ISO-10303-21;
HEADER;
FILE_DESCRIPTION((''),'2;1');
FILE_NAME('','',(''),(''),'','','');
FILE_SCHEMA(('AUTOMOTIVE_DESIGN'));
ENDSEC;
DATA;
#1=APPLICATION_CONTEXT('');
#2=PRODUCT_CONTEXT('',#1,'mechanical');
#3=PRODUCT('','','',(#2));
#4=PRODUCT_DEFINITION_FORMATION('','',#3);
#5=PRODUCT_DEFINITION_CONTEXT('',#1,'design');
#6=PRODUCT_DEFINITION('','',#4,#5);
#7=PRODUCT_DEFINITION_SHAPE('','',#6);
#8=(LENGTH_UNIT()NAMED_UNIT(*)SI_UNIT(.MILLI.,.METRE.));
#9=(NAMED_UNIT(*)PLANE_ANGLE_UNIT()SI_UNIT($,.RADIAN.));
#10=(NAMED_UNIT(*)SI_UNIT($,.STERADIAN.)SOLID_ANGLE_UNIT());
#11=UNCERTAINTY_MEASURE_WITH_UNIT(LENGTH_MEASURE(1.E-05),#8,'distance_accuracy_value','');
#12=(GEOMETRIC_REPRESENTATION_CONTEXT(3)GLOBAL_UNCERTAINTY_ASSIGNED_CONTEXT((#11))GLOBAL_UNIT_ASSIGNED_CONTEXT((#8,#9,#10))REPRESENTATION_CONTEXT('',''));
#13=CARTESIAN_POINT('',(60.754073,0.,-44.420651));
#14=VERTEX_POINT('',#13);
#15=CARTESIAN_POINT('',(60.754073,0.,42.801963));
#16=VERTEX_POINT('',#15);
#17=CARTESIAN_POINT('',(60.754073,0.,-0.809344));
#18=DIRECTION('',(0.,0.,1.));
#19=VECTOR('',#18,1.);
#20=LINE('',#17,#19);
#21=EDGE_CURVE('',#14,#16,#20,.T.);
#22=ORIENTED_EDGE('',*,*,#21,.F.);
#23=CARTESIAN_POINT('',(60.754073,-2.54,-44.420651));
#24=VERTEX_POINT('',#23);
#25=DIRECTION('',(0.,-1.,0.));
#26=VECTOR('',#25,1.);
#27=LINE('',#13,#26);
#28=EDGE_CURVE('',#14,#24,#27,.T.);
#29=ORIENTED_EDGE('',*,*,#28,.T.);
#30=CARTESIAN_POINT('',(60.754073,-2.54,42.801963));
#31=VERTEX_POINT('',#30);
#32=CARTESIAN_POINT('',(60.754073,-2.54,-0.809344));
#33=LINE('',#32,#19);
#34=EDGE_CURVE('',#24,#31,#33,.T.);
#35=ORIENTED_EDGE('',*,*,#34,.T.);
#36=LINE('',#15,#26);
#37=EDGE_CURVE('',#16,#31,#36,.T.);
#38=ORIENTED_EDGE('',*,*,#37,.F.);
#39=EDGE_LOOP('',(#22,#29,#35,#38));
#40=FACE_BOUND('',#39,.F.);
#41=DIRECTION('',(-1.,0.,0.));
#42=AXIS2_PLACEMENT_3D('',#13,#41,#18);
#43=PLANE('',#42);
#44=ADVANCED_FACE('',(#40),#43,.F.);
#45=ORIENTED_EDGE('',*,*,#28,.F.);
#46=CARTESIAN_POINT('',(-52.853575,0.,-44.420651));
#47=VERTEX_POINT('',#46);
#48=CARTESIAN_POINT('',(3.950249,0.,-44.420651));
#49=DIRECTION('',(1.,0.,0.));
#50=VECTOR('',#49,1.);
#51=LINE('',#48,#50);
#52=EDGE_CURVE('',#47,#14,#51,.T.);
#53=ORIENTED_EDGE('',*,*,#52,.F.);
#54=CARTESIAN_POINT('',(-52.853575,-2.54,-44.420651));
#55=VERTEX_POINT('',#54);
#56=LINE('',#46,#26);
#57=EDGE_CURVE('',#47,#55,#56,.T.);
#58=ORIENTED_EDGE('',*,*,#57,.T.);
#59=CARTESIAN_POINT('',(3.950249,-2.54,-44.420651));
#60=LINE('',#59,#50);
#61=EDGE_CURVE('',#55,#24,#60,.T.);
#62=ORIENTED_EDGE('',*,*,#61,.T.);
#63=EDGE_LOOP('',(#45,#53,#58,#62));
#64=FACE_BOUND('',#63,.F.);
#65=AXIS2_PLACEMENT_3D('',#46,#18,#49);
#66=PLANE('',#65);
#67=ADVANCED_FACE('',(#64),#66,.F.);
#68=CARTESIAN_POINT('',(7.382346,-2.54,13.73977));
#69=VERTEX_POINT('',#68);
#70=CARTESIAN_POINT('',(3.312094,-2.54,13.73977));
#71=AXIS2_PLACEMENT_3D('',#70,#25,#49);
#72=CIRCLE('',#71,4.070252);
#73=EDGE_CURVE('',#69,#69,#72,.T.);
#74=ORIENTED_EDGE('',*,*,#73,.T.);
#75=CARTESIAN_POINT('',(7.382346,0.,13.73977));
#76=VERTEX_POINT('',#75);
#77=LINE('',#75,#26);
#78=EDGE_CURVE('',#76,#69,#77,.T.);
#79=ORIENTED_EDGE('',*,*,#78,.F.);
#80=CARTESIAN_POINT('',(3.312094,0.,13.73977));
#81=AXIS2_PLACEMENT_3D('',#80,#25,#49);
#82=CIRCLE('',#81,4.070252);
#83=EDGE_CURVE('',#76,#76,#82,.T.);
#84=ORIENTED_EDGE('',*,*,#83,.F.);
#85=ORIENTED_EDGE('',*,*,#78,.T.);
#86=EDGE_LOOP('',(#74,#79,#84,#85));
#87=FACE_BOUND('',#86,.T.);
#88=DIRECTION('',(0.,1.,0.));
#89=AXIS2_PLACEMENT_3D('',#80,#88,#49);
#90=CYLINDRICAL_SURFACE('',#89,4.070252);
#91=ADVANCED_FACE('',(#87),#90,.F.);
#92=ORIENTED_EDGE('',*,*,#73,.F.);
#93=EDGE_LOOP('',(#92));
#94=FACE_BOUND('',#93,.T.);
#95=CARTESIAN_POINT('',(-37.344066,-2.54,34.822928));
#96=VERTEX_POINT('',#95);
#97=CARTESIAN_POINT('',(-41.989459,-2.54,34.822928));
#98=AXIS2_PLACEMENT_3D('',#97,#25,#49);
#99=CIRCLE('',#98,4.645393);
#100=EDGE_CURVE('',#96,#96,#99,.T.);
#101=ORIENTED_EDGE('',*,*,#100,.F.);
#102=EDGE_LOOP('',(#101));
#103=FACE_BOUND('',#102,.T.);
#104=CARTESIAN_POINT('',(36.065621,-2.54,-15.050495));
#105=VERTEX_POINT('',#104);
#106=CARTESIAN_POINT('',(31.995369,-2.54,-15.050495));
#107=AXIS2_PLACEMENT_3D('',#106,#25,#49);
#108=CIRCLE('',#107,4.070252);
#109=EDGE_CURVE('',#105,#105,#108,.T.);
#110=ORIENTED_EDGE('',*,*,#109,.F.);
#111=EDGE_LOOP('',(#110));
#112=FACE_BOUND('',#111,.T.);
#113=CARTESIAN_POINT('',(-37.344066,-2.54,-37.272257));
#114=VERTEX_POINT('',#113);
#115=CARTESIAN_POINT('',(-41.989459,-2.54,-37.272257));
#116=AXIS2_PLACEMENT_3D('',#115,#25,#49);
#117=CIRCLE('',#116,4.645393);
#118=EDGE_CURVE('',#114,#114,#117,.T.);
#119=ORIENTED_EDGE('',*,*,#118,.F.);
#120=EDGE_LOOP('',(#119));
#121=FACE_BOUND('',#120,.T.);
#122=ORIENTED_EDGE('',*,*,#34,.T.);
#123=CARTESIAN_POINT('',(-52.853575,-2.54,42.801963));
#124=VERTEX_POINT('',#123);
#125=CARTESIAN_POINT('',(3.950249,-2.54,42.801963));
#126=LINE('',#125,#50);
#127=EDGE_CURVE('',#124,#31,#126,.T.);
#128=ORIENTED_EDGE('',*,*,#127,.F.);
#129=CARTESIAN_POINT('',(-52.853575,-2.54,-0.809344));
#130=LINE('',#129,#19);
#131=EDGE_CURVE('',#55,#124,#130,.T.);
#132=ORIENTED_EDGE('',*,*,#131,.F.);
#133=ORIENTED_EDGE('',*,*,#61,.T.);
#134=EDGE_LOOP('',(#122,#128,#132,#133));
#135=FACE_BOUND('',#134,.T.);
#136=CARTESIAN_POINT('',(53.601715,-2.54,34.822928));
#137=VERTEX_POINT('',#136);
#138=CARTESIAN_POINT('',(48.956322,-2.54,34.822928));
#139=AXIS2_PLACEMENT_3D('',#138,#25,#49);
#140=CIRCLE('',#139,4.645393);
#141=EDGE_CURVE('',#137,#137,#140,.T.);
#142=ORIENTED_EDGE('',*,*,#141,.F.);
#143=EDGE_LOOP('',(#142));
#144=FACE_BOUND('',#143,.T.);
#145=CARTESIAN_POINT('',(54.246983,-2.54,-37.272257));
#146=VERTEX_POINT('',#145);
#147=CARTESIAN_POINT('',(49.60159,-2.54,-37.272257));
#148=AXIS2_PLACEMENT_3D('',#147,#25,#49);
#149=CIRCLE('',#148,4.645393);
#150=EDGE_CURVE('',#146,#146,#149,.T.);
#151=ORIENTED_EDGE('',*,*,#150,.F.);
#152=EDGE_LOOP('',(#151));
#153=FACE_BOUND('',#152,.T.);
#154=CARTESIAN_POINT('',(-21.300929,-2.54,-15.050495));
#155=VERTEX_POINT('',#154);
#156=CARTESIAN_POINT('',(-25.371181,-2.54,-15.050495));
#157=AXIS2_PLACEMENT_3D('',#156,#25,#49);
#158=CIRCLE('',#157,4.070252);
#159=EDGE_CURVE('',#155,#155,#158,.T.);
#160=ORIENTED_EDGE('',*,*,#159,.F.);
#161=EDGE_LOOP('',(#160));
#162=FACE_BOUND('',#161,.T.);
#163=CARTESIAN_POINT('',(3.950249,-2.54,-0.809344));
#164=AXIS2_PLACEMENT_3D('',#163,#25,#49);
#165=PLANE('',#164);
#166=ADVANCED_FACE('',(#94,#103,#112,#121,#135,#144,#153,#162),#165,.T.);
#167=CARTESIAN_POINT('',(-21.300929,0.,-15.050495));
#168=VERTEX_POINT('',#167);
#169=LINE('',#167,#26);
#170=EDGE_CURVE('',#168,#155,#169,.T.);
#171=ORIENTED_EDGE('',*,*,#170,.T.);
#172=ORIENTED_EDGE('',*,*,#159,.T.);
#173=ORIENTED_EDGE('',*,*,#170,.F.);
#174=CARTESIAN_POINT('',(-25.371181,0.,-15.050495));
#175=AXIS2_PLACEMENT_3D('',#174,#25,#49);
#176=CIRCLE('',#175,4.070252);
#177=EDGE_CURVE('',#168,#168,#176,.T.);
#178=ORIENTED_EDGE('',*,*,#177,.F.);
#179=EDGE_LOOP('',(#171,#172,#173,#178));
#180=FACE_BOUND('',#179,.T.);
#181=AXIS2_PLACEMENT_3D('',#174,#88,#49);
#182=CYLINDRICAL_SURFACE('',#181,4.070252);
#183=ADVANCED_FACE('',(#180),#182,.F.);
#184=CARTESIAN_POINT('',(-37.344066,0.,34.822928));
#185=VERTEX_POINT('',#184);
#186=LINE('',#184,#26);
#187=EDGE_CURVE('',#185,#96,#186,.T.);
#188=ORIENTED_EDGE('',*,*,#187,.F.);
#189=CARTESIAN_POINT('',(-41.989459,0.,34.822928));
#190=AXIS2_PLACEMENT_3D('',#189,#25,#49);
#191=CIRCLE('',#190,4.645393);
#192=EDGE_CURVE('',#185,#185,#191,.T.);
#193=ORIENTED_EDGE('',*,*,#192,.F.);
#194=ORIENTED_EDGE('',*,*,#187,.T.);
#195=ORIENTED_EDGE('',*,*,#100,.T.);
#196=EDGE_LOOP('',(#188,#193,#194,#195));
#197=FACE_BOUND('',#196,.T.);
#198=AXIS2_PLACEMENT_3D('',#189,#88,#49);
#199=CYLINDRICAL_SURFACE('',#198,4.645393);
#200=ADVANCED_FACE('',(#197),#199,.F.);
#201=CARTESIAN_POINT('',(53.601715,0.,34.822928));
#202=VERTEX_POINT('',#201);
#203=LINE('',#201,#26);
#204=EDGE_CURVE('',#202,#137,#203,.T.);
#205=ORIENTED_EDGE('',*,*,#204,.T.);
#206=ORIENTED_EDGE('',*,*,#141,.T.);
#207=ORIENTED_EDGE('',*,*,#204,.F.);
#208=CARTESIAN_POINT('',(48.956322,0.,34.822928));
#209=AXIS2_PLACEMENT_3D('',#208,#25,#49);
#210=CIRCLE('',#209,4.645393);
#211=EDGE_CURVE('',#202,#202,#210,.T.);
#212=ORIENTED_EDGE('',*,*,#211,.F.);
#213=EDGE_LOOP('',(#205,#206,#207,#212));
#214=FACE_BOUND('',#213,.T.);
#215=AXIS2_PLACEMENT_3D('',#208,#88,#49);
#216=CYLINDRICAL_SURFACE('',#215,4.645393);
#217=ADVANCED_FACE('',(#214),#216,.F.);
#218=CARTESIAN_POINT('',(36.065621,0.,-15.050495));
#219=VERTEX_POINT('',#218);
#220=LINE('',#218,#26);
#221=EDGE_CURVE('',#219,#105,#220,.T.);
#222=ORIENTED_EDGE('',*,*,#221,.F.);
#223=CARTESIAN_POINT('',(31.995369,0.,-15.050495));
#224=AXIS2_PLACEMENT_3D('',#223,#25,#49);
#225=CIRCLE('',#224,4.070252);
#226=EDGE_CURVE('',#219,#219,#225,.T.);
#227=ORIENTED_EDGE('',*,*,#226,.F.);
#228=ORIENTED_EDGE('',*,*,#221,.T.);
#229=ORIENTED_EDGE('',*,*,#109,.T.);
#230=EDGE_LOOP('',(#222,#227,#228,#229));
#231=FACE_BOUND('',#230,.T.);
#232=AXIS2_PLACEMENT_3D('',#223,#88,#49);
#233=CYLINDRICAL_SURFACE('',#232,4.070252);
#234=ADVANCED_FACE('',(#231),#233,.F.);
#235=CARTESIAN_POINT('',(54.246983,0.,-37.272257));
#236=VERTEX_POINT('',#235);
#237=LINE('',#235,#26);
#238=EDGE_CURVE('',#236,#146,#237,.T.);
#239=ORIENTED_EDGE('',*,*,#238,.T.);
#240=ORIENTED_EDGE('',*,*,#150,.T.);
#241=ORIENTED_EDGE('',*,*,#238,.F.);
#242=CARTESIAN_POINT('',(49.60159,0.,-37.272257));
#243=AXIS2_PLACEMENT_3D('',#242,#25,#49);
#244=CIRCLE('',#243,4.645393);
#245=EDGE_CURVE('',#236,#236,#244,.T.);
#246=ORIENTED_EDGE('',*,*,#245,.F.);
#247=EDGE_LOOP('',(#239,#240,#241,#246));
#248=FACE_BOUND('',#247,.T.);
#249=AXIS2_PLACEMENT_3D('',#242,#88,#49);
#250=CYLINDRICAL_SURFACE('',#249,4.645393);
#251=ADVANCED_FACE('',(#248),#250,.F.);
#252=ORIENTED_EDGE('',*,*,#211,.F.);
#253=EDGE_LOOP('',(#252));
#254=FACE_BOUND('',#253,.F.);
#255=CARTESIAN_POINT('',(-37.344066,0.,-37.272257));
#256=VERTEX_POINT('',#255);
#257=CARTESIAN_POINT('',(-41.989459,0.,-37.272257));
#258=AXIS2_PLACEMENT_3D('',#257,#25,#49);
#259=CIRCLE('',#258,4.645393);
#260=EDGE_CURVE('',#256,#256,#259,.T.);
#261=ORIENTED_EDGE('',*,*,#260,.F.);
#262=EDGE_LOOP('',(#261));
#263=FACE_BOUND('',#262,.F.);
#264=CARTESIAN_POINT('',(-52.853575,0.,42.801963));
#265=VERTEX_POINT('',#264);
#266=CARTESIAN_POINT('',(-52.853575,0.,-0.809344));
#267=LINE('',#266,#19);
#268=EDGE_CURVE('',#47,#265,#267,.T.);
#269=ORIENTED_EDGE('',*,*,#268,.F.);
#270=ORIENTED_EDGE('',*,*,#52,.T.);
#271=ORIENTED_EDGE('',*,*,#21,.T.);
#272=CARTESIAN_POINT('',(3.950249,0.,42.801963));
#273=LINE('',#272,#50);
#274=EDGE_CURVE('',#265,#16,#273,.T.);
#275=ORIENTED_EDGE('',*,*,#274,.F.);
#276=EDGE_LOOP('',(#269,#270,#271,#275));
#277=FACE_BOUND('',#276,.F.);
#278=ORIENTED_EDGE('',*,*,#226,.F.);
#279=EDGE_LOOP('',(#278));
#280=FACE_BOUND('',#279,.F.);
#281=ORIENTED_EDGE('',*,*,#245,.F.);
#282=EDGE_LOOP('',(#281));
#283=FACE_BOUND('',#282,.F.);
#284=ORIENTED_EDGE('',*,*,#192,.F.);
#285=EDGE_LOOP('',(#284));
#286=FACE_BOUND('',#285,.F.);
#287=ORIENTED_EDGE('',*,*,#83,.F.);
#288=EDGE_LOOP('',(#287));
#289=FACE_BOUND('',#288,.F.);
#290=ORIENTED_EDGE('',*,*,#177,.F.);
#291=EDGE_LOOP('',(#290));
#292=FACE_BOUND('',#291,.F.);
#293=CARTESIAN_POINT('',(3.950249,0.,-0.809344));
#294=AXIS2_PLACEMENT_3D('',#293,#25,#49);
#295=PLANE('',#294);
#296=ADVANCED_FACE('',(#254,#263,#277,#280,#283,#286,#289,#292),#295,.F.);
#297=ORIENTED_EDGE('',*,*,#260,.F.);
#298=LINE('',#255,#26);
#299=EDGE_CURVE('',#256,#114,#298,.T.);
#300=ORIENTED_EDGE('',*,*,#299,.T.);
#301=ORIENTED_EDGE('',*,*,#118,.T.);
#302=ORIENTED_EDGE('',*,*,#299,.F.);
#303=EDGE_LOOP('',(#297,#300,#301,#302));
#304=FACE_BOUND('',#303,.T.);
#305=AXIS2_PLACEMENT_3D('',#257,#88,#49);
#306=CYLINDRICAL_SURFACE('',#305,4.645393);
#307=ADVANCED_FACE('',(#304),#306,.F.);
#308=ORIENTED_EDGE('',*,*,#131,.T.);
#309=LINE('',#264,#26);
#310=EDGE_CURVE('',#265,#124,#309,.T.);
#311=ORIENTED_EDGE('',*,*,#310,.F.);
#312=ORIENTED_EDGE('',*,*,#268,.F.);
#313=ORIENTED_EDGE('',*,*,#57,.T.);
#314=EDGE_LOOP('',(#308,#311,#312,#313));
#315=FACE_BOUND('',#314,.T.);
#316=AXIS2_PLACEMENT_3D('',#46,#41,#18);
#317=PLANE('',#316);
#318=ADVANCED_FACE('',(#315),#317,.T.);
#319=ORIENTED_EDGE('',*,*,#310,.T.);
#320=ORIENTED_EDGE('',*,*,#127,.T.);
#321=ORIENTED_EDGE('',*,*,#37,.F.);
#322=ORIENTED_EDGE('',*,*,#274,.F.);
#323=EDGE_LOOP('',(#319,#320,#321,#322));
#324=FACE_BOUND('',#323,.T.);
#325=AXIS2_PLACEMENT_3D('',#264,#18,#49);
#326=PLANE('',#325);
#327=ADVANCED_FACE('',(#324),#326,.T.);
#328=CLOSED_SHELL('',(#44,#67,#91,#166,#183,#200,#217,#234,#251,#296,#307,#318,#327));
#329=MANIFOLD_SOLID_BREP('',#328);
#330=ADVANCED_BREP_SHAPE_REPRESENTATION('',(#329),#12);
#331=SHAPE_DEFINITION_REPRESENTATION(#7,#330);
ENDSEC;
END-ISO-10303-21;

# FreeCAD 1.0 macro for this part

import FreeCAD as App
import Part
import Sketcher
from FreeCAD import Vector
Q = App.Units.Quantity

doc = App.newDocument("Part")
body = doc.addObject("PartDesign::Body", "Body")

# Sketch on XZ plane
sketch1 = doc.addObject("Sketcher::SketchObject", "Sketch")
body.addObject(sketch1)
sketch1.AttachmentSupport = (doc.XZ_Plane, [""])
sketch1.MapMode = "FlatFace"
sketch1.addGeometry([
    Part.LineSegment(Vector(-52.9, 42.8, 0), Vector(-52.9, -44.4, 0)),  # 0
    Part.LineSegment(Vector(-52.9, -44.4, 0), Vector(60.8, -44.4, 0)),  # 1
    Part.LineSegment(Vector(60.8, -44.4, 0), Vector(60.8, 42.8, 0)),  # 2
    Part.LineSegment(Vector(60.8, 42.8, 0), Vector(-52.9, 42.8, 0)),  # 3
    Part.Circle(Vector(-42, -37.3, 0), Vector(0, 0, 1), 4.6),  # 4
    Part.Circle(Vector(-25.4, -15.1, 0), Vector(0, 0, 1), 4.1),  # 5
    Part.Circle(Vector(49.6, -37.3, 0), Vector(0, 0, 1), 4.6),  # 6
    Part.Circle(Vector(32, -15.1, 0), Vector(0, 0, 1), 4.1),  # 7
    Part.Circle(Vector(3.3, 13.7, 0), Vector(0, 0, 1), 4.1),  # 8
    Part.Circle(Vector(-42, 34.8, 0), Vector(0, 0, 1), 4.6),  # 9
    Part.Circle(Vector(49, 34.8, 0), Vector(0, 0, 1), 4.6),  # 10
], False)
sketch1.addConstraint([
    Sketcher.Constraint("Coincident", 0, 2, 1, 1),
    Sketcher.Constraint("Coincident", 1, 2, 2, 1),
    Sketcher.Constraint("Coincident", 2, 2, 3, 1),
    Sketcher.Constraint("Coincident", 3, 2, 0, 1),
    Sketcher.Constraint("Vertical", 0),
    Sketcher.Constraint("Horizontal", 1),
    Sketcher.Constraint("Vertical", 2),
    Sketcher.Constraint("Horizontal", 3),
    Sketcher.Constraint("Equal", 4, 6),
    Sketcher.Constraint("Equal", 5, 7),
    Sketcher.Constraint("Equal", 7, 8),
    Sketcher.Constraint("Equal", 6, 9),
    Sketcher.Constraint("Equal", 9, 10),
    Sketcher.Constraint("Horizontal", 4, 3, 6, 3),
    Sketcher.Constraint("Horizontal", 5, 3, 7, 3),
    Sketcher.Constraint("Horizontal", 9, 3, 10, 3),
    Sketcher.Constraint("Vertical", 4, 3, 9, 3),
    Sketcher.Constraint("Diameter", 4, 9.290786),
    Sketcher.Constraint("Diameter", 5, 8.140504),
    Sketcher.Constraint("DistanceX", 1, 1, 1, 2, 113.607649),
    Sketcher.Constraint("DistanceY", 0, 2, 0, 1, 87.222615),
    Sketcher.Constraint("DistanceX", 4, 3, -1, 1, 41.989459),
    Sketcher.Constraint("DistanceX", 5, 3, -1, 1, 25.371181),
    Sketcher.Constraint("DistanceX", -1, 1, 6, 3, 49.60159),
    Sketcher.Constraint("DistanceX", -1, 1, 7, 3, 31.995369),
    Sketcher.Constraint("DistanceY", -1, 1, 8, 3, 13.73977),
    Sketcher.Constraint("DistanceY", 0, 2, -1, 1, 44.420651),
    Sketcher.Constraint("DistanceX", 10, 3, 6, 3, 0.645268),
    Sketcher.Constraint("DistanceY", 0, 2, 9, 3, 79.243579),
    Sketcher.Constraint("DistanceX", 0, 2, 8, 3, 56.165669),
    Sketcher.Constraint("DistanceX", 10, 3, 1, 2, 11.797751),
    Sketcher.Constraint("DistanceY", 7, 3, 2, 2, 57.852458),
    Sketcher.Constraint("DistanceY", 6, 3, 2, 2, 80.07422),
])
pad1 = doc.addObject("PartDesign::Pad", "Pad")
body.addObject(pad1)
pad1.Profile = sketch1
pad1.Length = Q("0.1 in")

doc.recompute()
